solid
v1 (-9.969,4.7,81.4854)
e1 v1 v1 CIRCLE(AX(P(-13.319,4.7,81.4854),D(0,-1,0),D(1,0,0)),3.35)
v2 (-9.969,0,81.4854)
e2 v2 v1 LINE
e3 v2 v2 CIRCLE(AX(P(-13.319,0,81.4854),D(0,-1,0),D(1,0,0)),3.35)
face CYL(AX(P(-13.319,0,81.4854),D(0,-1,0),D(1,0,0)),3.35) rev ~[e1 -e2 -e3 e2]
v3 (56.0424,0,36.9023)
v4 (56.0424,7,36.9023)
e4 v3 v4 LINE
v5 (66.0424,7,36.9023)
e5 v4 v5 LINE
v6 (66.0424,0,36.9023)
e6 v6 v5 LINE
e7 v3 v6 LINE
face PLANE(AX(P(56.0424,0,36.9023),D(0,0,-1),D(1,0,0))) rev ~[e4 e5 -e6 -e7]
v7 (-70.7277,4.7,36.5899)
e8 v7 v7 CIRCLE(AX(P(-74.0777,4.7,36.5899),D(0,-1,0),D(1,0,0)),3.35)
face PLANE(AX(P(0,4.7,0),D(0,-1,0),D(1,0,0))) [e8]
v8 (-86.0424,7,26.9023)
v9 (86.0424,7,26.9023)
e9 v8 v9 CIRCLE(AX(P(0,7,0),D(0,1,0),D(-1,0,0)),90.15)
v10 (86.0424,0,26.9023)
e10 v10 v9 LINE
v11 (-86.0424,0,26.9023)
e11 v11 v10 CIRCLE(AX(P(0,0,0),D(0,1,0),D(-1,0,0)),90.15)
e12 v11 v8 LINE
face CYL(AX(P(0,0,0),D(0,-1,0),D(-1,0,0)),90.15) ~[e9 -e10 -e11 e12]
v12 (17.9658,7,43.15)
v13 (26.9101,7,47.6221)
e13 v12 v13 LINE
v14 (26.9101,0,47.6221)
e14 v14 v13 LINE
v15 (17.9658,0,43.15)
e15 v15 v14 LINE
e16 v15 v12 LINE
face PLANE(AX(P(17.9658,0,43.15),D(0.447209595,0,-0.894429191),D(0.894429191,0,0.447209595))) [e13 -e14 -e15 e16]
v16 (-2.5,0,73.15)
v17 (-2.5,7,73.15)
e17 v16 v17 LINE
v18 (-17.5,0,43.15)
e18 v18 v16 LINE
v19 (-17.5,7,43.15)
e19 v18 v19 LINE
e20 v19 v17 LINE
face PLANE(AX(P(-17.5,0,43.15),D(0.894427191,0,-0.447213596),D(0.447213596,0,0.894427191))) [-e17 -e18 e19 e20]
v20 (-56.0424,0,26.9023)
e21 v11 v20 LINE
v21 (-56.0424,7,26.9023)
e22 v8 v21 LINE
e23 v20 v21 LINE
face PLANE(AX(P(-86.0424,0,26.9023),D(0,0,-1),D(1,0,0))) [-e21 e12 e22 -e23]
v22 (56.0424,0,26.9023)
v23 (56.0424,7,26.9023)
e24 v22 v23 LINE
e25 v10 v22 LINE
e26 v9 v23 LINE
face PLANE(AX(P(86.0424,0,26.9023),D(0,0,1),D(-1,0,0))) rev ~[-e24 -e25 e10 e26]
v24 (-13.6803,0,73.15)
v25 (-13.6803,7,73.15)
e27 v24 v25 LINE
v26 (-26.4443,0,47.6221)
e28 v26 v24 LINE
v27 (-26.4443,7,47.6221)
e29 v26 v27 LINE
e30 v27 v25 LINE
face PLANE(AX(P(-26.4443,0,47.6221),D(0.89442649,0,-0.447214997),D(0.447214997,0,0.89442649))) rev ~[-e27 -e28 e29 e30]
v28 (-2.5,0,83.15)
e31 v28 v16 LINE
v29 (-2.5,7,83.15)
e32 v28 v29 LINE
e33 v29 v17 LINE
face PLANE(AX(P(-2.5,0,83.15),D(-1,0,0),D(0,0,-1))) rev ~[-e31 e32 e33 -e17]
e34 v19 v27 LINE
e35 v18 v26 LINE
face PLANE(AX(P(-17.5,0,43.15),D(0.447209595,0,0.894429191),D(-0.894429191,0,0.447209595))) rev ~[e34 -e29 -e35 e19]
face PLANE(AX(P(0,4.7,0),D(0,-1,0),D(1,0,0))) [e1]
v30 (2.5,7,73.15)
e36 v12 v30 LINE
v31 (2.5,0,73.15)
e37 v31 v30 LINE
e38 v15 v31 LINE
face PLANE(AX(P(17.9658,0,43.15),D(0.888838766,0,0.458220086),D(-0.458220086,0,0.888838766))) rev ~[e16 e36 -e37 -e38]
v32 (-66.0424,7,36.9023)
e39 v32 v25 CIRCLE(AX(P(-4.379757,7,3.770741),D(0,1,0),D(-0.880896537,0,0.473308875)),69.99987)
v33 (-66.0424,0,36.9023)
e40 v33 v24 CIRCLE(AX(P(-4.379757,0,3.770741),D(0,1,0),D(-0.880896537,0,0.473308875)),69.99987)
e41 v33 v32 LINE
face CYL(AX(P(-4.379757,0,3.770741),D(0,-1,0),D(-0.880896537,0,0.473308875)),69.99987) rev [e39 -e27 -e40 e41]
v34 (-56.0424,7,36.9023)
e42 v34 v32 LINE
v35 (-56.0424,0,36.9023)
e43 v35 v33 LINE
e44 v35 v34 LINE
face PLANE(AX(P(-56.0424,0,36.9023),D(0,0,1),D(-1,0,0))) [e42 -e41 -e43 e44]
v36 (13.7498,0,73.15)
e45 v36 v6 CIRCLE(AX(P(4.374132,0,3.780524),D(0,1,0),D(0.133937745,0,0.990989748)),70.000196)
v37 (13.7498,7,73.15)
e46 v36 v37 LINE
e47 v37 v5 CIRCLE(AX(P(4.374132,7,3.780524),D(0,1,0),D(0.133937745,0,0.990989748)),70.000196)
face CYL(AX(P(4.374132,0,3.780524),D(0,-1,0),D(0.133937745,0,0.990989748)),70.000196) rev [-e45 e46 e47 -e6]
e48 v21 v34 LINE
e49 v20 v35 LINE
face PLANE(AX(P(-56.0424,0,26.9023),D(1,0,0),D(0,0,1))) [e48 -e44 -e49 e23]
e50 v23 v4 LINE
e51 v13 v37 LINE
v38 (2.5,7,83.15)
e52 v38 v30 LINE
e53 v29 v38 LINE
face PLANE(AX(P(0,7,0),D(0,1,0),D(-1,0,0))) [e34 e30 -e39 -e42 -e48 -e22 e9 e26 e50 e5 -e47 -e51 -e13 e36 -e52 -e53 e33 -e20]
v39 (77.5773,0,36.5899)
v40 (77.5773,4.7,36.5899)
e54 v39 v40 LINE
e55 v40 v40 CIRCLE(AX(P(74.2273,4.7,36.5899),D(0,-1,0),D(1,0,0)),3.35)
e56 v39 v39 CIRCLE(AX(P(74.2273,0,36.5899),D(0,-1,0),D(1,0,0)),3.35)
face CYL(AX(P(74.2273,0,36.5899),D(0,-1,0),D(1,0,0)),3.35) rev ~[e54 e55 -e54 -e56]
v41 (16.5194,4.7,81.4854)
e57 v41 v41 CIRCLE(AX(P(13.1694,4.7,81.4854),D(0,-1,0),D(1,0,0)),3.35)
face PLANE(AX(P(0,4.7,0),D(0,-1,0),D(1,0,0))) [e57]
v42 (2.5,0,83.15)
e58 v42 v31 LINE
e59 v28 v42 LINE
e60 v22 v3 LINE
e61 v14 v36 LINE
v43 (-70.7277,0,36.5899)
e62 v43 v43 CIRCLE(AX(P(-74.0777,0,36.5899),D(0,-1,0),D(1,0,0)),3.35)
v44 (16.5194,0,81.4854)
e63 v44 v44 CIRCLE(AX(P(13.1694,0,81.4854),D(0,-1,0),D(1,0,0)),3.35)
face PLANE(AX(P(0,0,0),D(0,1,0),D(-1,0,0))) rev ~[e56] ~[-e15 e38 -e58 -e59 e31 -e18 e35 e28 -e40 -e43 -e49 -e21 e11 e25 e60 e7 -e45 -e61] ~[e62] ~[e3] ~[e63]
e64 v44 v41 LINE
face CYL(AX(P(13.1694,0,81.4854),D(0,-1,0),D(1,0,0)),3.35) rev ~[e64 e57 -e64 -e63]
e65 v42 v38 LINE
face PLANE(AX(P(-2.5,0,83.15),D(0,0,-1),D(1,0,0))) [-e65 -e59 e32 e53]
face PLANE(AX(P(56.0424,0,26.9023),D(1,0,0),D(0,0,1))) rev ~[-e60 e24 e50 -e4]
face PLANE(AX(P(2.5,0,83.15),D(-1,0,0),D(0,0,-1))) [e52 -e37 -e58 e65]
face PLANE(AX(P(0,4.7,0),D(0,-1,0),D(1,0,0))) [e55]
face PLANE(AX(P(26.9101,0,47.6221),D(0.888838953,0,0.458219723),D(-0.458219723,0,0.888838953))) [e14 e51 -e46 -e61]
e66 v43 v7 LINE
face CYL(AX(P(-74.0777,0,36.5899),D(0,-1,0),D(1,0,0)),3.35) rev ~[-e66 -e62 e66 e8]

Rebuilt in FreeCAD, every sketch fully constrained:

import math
import FreeCAD as App
import Part
import Sketcher

V = App.Vector

doc = App.newDocument("Part")
body = doc.addObject("PartDesign::Body", "Body")

# Sketch on XZ plane
sketch1 = body.newObject("Sketcher::SketchObject", "Sketch")
sketch1.AttachmentSupport = (doc.getObject("XZ_Plane"), [""])
sketch1.MapMode = "FlatFace"
sketch1.addGeometry([
    Part.LineSegment(V(-56, 27, 0), V(-86, 27, 0)),  # 0
    Part.ArcOfCircle(Part.Circle(V(0, 0, 0), V(0, 0, 1), 90), math.radians(17), math.radians(163)),  # 1
    Part.LineSegment(V(86, 27, 0), V(56, 27, 0)),  # 2
    Part.LineSegment(V(56, 27, 0), V(56, 37, 0)),  # 3
    Part.LineSegment(V(56, 37, 0), V(66, 37, 0)),  # 4
    Part.ArcOfCircle(Part.Circle(V(4, 4, 0), V(0, 0, 1), 70), math.radians(28), math.radians(82)),  # 5
    Part.LineSegment(V(14, 73, 0), V(27, 48, 0)),  # 6
    Part.LineSegment(V(27, 48, 0), V(18, 43, 0)),  # 7
    Part.LineSegment(V(18, 43, 0), V(2, 73, 0)),  # 8
    Part.LineSegment(V(2, 73, 0), V(2, 83, 0)),  # 9
    Part.LineSegment(V(2, 83, 0), V(-2, 83, 0)),  # 10
    Part.LineSegment(V(-2, 83, 0), V(-2, 73, 0)),  # 11
    Part.LineSegment(V(-2, 73, 0), V(-18, 43, 0)),  # 12
    Part.LineSegment(V(-18, 43, 0), V(-26, 48, 0)),  # 13
    Part.LineSegment(V(-26, 48, 0), V(-14, 73, 0)),  # 14
    Part.ArcOfCircle(Part.Circle(V(-4, 4, 0), V(0, 0, 1), 70), math.radians(98), math.radians(152)),  # 15
    Part.LineSegment(V(-66, 37, 0), V(-56, 37, 0)),  # 16
    Part.LineSegment(V(-56, 37, 0), V(-56, 27, 0)),  # 17
], False)
sketch1.addConstraint([
    Sketcher.Constraint("Coincident", 0, 2, 1, 2),
    Sketcher.Constraint("Coincident", 1, 1, 2, 1),
    Sketcher.Constraint("Coincident", 2, 2, 3, 1),
    Sketcher.Constraint("Coincident", 3, 2, 4, 1),
    Sketcher.Constraint("Coincident", 4, 2, 5, 1),
    Sketcher.Constraint("Coincident", 5, 2, 6, 1),
    Sketcher.Constraint("Coincident", 6, 2, 7, 1),
    Sketcher.Constraint("Coincident", 7, 2, 8, 1),
    Sketcher.Constraint("Coincident", 8, 2, 9, 1),
    Sketcher.Constraint("Coincident", 9, 2, 10, 1),
    Sketcher.Constraint("Coincident", 10, 2, 11, 1),
    Sketcher.Constraint("Coincident", 11, 2, 12, 1),
    Sketcher.Constraint("Coincident", 12, 2, 13, 1),
    Sketcher.Constraint("Coincident", 13, 2, 14, 1),
    Sketcher.Constraint("Coincident", 14, 2, 15, 1),
    Sketcher.Constraint("Coincident", 15, 2, 16, 1),
    Sketcher.Constraint("Coincident", 16, 2, 17, 1),
    Sketcher.Constraint("Coincident", 17, 2, 0, 1),
    Sketcher.Constraint("Horizontal", 0),
    Sketcher.Constraint("Horizontal", 2),
    Sketcher.Constraint("Vertical", 3),
    Sketcher.Constraint("Horizontal", 4),
    Sketcher.Constraint("Vertical", 9),
    Sketcher.Constraint("Horizontal", 10),
    Sketcher.Constraint("Vertical", 11),
    Sketcher.Constraint("Horizontal", 16),
    Sketcher.Constraint("Vertical", 17),
    Sketcher.Constraint("Coincident", 1, 3, -1, 1),
    Sketcher.Constraint("Equal", 5, 15),
    Sketcher.Constraint("Symmetric", 8, 2, 11, 2, -2),
    Sketcher.Constraint("Symmetric", 4, 2, 15, 2, -2),
    Sketcher.Constraint("Symmetric", 2, 2, 17, 2, -2),
    Sketcher.Constraint("Parallel", 6, 8),
    Sketcher.Constraint("Perpendicular", 12, 13),
    Sketcher.Constraint("Perpendicular", 13, 14),
    Sketcher.Constraint("Horizontal", 5, 2, 8, 2),
    Sketcher.Constraint("Horizontal", 7, 2, 12, 2),
    Sketcher.Constraint("Horizontal", 6, 2, 13, 2),
    Sketcher.Constraint("Horizontal", 11, 2, 14, 2),
    Sketcher.Constraint("Equal", 16, 3),
    Sketcher.Constraint("Equal", 3, 9),
    Sketcher.Constraint("Equal", 7, 13),
    Sketcher.Constraint("Radius", 5, 70.0),
    Sketcher.Constraint("DistanceX", 0, 2, 0, 1, 30.0),
    Sketcher.Constraint("DistanceX", 4, 1, 4, 2, 10.0),
    Sketcher.Constraint("DistanceX", 10, 2, 10, 1, 5.0),
    Sketcher.Constraint("Radius", 1, 90.15),
    Sketcher.Constraint("Distance", 7, 10.0),
    Sketcher.Constraint("DistanceY", 7, 2, 5, 2, 30.0),
    Sketcher.Constraint("DistanceX", 12, 2, 11, 2, 15.0),
    Sketcher.Constraint("DistanceY", -1, 1, 5, 2, 73.15),
    Sketcher.Constraint("DistanceX", -1, 1, 6, 2, 26.91),
    Sketcher.Constraint("DistanceX", 15, 3, 2, 2, 60.422),
])
pad1 = body.newObject("PartDesign::Pad", "Pad")
pad1.Profile = sketch1
pad1.Length = 7
pad1.Reversed = True

# Sketch on XZ plane
sketch2 = body.newObject("Sketcher::SketchObject", "Sketch001")
sketch2.AttachmentSupport = (doc.getObject("XZ_Plane"), [""])
sketch2.MapMode = "FlatFace"
sketch2.addGeometry([
    Part.Circle(V(74.2, 36.6, 0), V(0, 0, 1), 3.4),
    Part.Circle(V(-74.1, 36.6, 0), V(0, 0, 1), 3.4),
    Part.Circle(V(-13.3, 81.5, 0), V(0, 0, 1), 3.4),
    Part.Circle(V(13.2, 81.5, 0), V(0, 0, 1), 3.4),
], False)
sketch2.addConstraint([
    Sketcher.Constraint("Equal", 0, 1),
    Sketcher.Constraint("Equal", 1, 2),
    Sketcher.Constraint("Equal", 2, 3),
    Sketcher.Constraint("Horizontal", 0, 3, 1, 3),
    Sketcher.Constraint("Horizontal", 2, 3, 3, 3),
    Sketcher.Constraint("Diameter", 0, 6.7),
    Sketcher.Constraint("DistanceY", -1, 1, 0, 3, 36.59),
    Sketcher.Constraint("DistanceX", 2, 3, -1, 1, 13.319),
    Sketcher.Constraint("DistanceX", 1, 3, 0, 3, 148.305),
    Sketcher.Constraint("DistanceX", 3, 3, 0, 3, 61.058),
    Sketcher.Constraint("DistanceX", -1, 1, 0, 3, 74.2273),
    Sketcher.Constraint("DistanceY", -1, 1, 2, 3, 81.4854),
])
pocket1 = body.newObject("PartDesign::Pocket", "Pocket")
pocket1.Profile = sketch2
pocket1.Length = 4.7

doc.recompute()
